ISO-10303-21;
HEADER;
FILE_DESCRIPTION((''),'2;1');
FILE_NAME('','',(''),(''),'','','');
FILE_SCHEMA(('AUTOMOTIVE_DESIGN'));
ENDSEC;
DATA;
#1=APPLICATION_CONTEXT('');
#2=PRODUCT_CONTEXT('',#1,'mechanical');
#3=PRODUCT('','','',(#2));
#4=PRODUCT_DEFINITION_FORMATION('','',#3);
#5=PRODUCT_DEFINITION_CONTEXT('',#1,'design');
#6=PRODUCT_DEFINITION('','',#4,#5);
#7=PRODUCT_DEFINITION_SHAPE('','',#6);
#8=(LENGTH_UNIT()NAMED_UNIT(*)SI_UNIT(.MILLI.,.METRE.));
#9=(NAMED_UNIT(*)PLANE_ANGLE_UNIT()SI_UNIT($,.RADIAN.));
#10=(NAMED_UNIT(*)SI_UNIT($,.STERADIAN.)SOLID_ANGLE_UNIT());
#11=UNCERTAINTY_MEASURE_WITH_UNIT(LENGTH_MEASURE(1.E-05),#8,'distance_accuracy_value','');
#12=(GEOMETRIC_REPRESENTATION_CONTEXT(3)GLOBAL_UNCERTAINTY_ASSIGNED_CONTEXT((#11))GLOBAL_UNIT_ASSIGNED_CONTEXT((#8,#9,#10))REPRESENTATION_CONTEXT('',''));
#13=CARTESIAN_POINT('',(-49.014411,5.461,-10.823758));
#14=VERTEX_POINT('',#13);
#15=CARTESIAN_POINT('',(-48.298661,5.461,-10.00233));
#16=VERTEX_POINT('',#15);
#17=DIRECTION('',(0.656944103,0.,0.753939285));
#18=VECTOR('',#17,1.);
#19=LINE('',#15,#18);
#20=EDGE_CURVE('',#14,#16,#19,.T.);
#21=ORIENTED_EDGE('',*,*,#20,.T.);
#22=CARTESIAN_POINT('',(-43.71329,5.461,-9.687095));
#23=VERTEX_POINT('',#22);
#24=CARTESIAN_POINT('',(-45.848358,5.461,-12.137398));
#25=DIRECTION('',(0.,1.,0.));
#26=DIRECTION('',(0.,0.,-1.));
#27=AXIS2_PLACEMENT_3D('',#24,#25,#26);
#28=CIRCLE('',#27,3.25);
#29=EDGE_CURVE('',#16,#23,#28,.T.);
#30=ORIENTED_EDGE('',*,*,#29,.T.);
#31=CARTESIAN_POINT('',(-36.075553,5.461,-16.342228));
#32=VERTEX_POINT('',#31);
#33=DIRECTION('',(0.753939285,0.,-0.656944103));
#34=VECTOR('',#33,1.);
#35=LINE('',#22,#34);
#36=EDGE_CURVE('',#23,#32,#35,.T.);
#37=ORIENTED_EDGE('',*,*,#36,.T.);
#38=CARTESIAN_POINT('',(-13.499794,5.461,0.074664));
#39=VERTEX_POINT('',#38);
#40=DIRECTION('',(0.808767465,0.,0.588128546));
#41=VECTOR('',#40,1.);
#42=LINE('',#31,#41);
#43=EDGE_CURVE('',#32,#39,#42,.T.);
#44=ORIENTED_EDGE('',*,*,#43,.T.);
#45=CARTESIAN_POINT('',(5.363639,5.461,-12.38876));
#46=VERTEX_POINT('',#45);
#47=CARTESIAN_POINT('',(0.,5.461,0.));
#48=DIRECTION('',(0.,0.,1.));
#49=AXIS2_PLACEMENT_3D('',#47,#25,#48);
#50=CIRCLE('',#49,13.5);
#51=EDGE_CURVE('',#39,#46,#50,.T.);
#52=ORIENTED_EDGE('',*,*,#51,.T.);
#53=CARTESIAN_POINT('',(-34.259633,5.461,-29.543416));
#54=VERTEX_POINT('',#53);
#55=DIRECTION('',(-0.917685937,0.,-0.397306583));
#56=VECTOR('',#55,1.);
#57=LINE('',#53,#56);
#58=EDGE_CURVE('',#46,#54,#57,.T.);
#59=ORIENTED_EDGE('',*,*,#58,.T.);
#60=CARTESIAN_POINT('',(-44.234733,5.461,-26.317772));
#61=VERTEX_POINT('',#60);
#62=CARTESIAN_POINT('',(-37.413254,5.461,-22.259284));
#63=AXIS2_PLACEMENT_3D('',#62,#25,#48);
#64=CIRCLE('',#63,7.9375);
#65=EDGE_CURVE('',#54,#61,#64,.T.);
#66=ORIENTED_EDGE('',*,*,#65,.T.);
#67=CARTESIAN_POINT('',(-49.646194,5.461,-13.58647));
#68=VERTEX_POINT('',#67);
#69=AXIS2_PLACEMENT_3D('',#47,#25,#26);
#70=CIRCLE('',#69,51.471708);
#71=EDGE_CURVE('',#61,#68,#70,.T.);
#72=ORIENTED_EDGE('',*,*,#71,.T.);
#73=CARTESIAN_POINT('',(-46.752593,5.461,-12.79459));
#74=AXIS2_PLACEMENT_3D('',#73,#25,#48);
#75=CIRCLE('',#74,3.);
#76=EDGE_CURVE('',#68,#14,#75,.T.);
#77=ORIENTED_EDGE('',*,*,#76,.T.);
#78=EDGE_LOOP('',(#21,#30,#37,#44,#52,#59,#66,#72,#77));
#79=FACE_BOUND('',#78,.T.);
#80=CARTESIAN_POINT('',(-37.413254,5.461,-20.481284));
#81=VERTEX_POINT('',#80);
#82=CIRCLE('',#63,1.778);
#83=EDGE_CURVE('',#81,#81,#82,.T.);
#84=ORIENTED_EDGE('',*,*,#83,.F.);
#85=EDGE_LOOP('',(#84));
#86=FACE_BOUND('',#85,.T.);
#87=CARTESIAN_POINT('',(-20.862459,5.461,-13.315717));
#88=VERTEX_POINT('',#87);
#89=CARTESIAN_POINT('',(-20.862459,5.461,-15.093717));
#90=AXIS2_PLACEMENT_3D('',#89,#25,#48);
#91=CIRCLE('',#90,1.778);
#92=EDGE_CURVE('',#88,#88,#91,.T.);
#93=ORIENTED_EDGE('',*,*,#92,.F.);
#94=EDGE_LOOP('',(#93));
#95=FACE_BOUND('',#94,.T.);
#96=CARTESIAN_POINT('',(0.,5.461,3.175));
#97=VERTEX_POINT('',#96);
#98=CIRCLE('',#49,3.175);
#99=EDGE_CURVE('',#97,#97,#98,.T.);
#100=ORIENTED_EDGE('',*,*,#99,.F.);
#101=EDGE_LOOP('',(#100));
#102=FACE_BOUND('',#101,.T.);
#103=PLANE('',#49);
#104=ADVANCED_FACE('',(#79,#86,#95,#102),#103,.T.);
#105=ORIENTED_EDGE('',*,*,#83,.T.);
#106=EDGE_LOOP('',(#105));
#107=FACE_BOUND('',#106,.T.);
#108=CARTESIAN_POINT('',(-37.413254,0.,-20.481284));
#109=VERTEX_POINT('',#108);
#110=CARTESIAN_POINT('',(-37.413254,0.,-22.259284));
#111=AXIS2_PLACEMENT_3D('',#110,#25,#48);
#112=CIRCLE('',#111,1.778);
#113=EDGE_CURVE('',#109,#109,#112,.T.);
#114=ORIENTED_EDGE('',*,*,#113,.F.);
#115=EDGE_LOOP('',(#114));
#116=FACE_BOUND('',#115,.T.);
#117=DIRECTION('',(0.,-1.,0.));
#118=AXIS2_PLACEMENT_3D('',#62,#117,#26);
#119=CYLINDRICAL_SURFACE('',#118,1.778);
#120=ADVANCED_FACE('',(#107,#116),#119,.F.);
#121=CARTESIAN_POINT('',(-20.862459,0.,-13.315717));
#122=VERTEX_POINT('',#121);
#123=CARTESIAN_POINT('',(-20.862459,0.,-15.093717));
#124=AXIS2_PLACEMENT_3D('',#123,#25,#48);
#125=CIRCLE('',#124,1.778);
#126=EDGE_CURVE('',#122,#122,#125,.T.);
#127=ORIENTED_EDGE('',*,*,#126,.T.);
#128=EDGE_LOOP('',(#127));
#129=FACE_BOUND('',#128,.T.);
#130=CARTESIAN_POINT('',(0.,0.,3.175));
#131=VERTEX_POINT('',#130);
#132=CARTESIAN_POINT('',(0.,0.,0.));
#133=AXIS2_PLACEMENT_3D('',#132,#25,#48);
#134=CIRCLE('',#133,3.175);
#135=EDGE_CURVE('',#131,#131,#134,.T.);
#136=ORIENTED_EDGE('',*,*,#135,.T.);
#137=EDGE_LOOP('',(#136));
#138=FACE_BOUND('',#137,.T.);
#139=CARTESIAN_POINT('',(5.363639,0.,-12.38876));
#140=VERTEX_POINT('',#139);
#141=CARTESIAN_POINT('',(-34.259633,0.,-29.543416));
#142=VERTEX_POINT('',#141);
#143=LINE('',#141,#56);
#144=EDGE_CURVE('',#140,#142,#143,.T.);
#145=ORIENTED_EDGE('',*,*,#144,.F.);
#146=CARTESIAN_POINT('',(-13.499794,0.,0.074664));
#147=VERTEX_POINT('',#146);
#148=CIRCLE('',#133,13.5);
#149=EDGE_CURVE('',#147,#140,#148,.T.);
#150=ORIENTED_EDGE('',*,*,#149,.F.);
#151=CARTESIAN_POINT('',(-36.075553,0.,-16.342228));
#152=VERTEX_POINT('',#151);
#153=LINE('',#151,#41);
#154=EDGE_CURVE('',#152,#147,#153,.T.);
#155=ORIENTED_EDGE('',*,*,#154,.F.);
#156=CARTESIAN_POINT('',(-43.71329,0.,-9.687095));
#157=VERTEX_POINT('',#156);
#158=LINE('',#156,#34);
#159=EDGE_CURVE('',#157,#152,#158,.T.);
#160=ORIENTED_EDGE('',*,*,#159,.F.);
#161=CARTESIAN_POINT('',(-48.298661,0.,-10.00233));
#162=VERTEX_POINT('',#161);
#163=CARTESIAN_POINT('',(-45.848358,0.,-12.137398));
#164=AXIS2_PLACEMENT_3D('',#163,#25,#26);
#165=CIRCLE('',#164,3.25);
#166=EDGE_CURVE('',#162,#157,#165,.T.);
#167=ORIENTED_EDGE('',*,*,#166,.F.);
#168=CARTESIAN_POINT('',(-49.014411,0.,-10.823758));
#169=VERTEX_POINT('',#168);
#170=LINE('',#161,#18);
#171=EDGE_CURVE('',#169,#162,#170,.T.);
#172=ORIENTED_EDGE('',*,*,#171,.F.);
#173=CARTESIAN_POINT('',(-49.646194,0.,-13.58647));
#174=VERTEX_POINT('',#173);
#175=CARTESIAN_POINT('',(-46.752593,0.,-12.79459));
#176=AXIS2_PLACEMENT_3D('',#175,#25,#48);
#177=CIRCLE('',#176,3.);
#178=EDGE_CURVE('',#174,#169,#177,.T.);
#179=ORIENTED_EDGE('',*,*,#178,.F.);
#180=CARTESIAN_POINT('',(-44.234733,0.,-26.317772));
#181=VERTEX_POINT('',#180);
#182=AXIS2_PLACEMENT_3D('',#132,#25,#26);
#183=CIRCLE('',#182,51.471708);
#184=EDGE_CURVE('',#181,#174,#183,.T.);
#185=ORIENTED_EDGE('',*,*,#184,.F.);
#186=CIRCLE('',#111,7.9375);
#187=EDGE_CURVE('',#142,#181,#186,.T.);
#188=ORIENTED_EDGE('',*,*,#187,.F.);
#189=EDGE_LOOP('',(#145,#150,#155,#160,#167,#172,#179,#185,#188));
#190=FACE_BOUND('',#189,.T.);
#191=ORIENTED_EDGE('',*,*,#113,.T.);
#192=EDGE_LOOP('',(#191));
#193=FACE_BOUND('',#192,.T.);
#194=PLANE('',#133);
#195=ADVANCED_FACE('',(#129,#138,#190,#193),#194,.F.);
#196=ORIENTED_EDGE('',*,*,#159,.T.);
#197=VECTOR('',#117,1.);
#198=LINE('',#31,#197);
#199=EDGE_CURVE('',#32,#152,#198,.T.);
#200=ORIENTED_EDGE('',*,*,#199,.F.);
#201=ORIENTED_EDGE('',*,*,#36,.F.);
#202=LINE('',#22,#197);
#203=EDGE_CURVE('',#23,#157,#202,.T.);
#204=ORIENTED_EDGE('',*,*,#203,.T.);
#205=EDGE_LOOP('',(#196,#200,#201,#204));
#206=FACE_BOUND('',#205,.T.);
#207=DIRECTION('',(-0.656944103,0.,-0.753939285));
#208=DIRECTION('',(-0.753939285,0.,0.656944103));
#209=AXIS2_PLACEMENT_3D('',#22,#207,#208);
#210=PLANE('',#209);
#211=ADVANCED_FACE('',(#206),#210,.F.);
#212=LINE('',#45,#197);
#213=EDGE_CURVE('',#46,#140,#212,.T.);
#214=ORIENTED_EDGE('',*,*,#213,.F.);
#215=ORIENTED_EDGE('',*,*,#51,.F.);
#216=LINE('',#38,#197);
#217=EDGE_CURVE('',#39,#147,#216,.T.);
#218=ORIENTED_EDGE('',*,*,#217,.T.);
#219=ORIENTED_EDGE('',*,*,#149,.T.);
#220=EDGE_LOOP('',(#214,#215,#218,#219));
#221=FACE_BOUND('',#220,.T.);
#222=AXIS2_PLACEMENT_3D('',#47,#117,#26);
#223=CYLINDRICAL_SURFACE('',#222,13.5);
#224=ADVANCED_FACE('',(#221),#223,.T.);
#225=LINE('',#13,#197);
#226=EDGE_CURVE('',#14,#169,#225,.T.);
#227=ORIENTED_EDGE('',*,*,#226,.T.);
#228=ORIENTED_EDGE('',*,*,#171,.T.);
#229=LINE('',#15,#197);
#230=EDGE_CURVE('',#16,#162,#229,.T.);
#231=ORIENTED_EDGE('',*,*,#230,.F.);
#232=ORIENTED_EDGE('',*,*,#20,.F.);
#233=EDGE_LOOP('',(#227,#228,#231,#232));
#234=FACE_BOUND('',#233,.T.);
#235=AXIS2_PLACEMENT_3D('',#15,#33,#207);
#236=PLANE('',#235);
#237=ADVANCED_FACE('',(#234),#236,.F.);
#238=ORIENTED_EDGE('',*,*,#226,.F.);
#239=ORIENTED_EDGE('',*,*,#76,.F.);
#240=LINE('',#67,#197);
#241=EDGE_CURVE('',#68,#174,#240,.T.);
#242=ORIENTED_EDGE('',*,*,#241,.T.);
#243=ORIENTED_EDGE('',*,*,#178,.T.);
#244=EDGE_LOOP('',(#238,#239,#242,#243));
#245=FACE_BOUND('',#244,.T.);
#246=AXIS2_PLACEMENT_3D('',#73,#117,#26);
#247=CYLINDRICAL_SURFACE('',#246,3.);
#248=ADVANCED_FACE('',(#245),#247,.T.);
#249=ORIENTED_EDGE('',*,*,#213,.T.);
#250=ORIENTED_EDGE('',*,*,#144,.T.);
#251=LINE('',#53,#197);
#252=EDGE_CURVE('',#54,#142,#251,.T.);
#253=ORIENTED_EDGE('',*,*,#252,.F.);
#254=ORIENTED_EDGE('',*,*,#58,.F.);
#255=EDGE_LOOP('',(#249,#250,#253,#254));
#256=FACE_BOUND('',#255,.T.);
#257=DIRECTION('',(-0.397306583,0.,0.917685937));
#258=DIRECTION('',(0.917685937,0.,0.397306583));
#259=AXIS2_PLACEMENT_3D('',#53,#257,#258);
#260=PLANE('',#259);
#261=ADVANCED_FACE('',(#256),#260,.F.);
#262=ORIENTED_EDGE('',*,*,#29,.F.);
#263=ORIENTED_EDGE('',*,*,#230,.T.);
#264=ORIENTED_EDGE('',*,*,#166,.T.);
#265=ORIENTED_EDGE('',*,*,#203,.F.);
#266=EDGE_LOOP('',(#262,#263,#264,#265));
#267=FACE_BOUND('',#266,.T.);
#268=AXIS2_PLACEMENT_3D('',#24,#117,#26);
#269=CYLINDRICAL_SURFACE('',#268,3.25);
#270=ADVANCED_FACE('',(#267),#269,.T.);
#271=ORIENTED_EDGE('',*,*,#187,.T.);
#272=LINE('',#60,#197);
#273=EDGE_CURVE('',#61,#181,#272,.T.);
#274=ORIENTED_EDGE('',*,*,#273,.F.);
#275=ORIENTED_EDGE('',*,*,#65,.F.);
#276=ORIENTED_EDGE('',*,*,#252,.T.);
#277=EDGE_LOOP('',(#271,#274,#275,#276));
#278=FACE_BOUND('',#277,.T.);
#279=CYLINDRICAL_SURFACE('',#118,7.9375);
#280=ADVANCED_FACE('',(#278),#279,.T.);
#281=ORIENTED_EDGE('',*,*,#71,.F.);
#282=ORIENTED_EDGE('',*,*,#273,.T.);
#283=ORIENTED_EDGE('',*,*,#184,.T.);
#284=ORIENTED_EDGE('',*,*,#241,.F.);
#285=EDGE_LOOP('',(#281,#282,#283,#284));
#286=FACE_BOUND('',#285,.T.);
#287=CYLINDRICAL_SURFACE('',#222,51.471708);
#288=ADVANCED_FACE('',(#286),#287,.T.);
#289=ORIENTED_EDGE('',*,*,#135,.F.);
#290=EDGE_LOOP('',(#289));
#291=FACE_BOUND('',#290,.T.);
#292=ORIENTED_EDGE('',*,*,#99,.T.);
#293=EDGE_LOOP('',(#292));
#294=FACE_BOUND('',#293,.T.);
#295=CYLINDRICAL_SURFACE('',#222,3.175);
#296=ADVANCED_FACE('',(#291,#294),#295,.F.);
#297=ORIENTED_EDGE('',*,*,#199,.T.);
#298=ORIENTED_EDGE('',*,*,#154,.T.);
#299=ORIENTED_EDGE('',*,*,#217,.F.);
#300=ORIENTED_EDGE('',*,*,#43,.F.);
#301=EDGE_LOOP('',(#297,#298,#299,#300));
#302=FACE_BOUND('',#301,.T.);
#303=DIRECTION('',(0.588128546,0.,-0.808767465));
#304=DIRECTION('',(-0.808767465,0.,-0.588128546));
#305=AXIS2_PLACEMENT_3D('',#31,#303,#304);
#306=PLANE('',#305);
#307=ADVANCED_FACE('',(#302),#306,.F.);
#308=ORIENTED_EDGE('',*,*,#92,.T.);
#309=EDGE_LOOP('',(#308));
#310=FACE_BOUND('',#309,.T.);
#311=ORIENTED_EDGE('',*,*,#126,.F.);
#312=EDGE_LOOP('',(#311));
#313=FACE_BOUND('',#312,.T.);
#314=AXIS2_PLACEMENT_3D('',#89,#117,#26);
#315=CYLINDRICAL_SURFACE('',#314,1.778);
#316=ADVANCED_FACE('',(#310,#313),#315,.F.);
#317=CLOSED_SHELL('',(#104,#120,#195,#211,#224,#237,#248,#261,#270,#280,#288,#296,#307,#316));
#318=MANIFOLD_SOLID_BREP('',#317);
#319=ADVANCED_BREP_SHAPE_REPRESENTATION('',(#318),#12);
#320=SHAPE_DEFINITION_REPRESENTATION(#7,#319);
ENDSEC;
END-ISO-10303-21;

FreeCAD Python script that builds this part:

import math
import FreeCAD as App
import Part
import Sketcher

V = App.Vector
Q = App.Units.Quantity

doc = App.newDocument("Part")
body = doc.addObject("PartDesign::Body", "Body")

sketch1 = doc.addObject("Sketcher::SketchObject", "Sketch")
body.addObject(sketch1)
sketch1.AttachmentSupport = (doc.XZ_Plane, [""])
sketch1.MapMode = "FlatFace"
sketch1.addGeometry(Part.LineSegment(V(-36.1, -16.3, 0), V(-13.5, 0.1, 0)), False)
sketch1.addGeometry(Part.ArcOfCircle(Part.Circle(V(0, 0, 0), V(0, 0, 1), 13.5), math.radians(-67), math.radians(180)), False)
sketch1.addGeometry(Part.LineSegment(V(5.4, -12.4, 0), V(-34.3, -29.5, 0)), False)
sketch1.addGeometry(Part.ArcOfCircle(Part.Circle(V(-37.4, -22.3, 0), V(0, 0, 1), 7.9), math.radians(-149), math.radians(-67)), False)
sketch1.addGeometry(Part.ArcOfCircle(Part.Circle(V(0, 0, 0), V(0, 0, 1), 51.5), math.radians(-164.69), math.radians(-149.25)), False)
sketch1.addGeometry(Part.ArcOfCircle(Part.Circle(V(-46.8, -12.8, 0), V(0, 0, 1), 3), math.radians(139), math.radians(195)), False)
sketch1.addGeometry(Part.LineSegment(V(-49, -10.8, 0), V(-48.3, -10, 0)), False)
sketch1.addGeometry(Part.ArcOfCircle(Part.Circle(V(-45.8, -12.1, 0), V(0, 0, 1), 3.2), math.radians(49), math.radians(139)), False)
sketch1.addGeometry(Part.LineSegment(V(-43.7, -9.7, 0), V(-36.1, -16.3, 0)), False)
sketch1.addGeometry(Part.Circle(V(0, 0, 0), V(0, 0, 1), 3.2), False)
sketch1.addGeometry(Part.Circle(V(-20.9, -15.1, 0), V(0, 0, 1), 1.8), False)
sketch1.addGeometry(Part.Circle(V(-37.4, -22.3, 0), V(0, 0, 1), 1.8), False)
sketch1.addConstraint(Sketcher.Constraint("Coincident", 0, 2, 1, 2))
sketch1.addConstraint(Sketcher.Constraint("Tangent", 1, 1, 2, 1))
sketch1.addConstraint(Sketcher.Constraint("Tangent", 2, 2, 3, 2))
sketch1.addConstraint(Sketcher.Constraint("Tangent", 3, 1, 4, 2))
sketch1.addConstraint(Sketcher.Constraint("Tangent", 4, 1, 5, 2))
sketch1.addConstraint(Sketcher.Constraint("Tangent", 5, 1, 6, 1))
sketch1.addConstraint(Sketcher.Constraint("Tangent", 6, 2, 7, 2))
sketch1.addConstraint(Sketcher.Constraint("Tangent", 7, 1, 8, 1))
sketch1.addConstraint(Sketcher.Constraint("Coincident", 8, 2, 0, 1))
sketch1.addConstraint(Sketcher.Constraint("Coincident", 1, 3, -1, 1))
sketch1.addConstraint(Sketcher.Constraint("Coincident", 4, 3, -1, 1))
sketch1.addConstraint(Sketcher.Constraint("Coincident", 9, 3, -1, 1))
sketch1.addConstraint(Sketcher.Constraint("Coincident", 11, 3, 3, 3))
sketch1.addConstraint(Sketcher.Constraint("Equal", 10, 11))
sketch1.addConstraint(Sketcher.Constraint("Perpendicular", 6, 8))
sketch1.addConstraint(Sketcher.Constraint("Diameter", 9, Q("0.25 in")))
sketch1.addConstraint(Sketcher.Constraint("Diameter", 10, Q("0.14 in")))
sketch1.addConstraint(Sketcher.Constraint("Radius", 3, Q("0.3125 in")))
sketch1.addConstraint(Sketcher.Constraint("Radius", 1, 13.5))
sketch1.addConstraint(Sketcher.Constraint("Radius", 5, 3.0))
sketch1.addConstraint(Sketcher.Constraint("Radius", 7, 3.25))
sketch1.addConstraint(Sketcher.Constraint("Radius", 4, 51.471708))
sketch1.addConstraint(Sketcher.Constraint("DistanceX", 5, 3, 7, 3, Q("0.0355998 in")))
sketch1.addConstraint(Sketcher.Constraint("DistanceY", 7, 3, -1, 1, 12.137398))
sketch1.addConstraint(Sketcher.Constraint("DistanceX", 7, 3, 10, 3, 24.985899))
sketch1.addConstraint(Sketcher.Constraint("DistanceY", 2, 2, 10, 3, 14.449699))
sketch1.addConstraint(Sketcher.Constraint("DistanceX", 3, 1, 2, 2, 9.9751))
sketch1.addConstraint(Sketcher.Constraint("DistanceX", 3, 3, 8, 2, 1.337701))
sketch1.addConstraint(Sketcher.Constraint("Distance", 8, 10.13044))
sketch1.addConstraint(Sketcher.Constraint("DistanceY", 10, 3, 0, 2, 15.168382))
pad1 = doc.addObject("PartDesign::Pad", "Pad")
body.addObject(pad1)
pad1.Profile = sketch1
pad1.Length = Q("0.215 in")
pad1.Reversed = True

doc.recompute()
